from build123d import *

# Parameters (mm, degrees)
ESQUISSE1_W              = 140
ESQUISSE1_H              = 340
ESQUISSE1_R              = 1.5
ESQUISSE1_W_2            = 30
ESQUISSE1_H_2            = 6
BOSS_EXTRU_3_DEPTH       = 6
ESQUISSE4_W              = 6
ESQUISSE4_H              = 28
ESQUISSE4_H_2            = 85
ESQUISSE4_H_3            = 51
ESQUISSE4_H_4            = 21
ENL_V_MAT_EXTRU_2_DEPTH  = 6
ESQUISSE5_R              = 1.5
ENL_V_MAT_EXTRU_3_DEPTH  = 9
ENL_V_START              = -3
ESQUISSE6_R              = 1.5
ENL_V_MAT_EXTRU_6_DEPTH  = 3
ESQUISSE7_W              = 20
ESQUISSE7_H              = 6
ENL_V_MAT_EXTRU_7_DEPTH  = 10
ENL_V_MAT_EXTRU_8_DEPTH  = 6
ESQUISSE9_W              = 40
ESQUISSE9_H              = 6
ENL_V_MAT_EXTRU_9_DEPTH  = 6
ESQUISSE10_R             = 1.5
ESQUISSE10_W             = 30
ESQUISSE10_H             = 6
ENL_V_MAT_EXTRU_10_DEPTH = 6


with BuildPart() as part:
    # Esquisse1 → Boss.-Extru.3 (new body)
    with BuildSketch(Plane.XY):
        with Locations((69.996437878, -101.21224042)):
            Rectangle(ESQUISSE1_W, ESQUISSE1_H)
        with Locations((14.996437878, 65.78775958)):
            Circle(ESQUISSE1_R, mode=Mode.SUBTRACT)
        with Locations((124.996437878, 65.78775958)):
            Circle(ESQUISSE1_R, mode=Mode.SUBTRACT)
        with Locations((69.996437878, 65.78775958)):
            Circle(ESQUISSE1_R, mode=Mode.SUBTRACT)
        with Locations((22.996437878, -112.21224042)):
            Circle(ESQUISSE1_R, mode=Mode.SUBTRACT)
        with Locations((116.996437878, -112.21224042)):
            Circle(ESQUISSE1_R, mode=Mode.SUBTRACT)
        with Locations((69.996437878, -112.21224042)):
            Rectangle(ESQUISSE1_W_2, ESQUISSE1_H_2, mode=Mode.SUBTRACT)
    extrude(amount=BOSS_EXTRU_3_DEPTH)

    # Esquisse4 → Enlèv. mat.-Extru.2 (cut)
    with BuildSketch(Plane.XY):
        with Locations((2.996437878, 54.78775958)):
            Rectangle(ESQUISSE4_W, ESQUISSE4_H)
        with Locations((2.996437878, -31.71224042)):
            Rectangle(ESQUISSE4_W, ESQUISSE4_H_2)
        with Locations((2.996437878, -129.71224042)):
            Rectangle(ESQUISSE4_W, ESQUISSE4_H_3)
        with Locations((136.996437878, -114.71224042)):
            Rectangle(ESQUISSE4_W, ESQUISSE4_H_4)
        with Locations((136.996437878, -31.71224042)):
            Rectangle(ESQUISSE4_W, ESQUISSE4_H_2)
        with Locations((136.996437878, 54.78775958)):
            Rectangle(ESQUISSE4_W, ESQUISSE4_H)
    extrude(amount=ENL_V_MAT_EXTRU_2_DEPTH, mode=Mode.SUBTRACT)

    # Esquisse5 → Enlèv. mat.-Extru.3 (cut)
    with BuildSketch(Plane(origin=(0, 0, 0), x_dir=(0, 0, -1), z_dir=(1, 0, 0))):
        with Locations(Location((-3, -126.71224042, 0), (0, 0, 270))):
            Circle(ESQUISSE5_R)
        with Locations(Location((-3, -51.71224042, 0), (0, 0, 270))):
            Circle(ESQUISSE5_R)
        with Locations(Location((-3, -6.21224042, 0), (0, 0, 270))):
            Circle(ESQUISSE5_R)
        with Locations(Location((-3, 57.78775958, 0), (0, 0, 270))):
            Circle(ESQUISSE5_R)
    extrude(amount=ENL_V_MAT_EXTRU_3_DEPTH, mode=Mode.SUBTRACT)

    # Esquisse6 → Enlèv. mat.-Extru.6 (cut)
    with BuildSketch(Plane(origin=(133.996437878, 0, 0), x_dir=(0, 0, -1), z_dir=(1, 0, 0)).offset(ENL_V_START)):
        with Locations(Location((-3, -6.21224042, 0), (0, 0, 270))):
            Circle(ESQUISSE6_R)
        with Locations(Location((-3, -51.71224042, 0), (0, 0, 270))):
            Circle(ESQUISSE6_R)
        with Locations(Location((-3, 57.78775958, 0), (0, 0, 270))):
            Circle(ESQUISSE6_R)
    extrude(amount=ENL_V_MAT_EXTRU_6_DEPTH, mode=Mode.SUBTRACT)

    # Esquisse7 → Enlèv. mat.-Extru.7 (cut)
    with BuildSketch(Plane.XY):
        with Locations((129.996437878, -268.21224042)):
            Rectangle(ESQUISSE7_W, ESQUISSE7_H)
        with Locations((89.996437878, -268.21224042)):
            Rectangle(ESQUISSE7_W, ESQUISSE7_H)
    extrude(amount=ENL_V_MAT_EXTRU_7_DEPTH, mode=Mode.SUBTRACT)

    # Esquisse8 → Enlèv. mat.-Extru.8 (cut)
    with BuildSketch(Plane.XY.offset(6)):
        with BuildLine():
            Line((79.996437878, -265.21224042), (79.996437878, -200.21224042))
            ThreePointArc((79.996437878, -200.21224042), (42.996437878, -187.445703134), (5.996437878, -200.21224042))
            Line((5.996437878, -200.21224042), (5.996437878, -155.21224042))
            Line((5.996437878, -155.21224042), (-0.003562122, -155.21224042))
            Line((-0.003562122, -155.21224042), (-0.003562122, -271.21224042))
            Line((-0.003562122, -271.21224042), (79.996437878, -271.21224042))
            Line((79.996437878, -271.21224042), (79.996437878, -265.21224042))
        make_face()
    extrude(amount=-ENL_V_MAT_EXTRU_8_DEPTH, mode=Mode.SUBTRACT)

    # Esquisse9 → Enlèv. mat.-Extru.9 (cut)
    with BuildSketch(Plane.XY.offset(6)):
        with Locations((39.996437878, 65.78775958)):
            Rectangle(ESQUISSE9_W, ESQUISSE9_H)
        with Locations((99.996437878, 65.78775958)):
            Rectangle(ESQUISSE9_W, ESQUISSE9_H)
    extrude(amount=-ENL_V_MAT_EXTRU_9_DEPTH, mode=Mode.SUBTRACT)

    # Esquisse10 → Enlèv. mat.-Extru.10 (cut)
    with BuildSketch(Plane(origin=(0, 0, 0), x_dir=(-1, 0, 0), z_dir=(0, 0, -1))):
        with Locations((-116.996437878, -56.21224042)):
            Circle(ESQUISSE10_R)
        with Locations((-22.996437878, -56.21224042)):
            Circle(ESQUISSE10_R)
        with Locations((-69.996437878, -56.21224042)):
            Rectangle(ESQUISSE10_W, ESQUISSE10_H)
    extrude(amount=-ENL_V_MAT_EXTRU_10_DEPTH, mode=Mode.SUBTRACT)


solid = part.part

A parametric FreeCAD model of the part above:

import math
import FreeCAD as App
import Part
import Sketcher


def add_polygon(sketch, points):
    """Adds a closed chain of lines whose ends are joined by coincident constraints."""
    first, n = sketch.GeometryCount, len(points)
    for a, b in zip(points, points[1:] + points[:1]):
        sketch.addGeometry(Part.LineSegment(App.Vector(*a, 0), App.Vector(*b, 0)), False)
    for i in range(n):
        sketch.addConstraint(Sketcher.Constraint("Coincident", first + i, 2, first + (i + 1) % n, 1))

doc = App.newDocument("Part")
body = doc.addObject("PartDesign::Body", "Body")

# Sketch on XY plane
sketch1 = doc.addObject("Sketcher::SketchObject", "Sketch")
body.addObject(sketch1)
sketch1.AttachmentSupport = (doc.XY_Plane, [""])
sketch1.MapMode = "FlatFace"
add_polygon(sketch1, [(0, 68.8), (0, -271.2), (140, -271.2), (140, 68.8)])  # lines 0-3
sketch1.addGeometry(Part.Circle(App.Vector(23, -112.2, 0), App.Vector(0, 0, 1), 1.5), False)  # 4
add_polygon(sketch1, [(85, -115.2), (55, -115.2), (55, -109.2), (85, -109.2)])  # lines 5-8
sketch1.addGeometry(Part.Circle(App.Vector(117, -112.2, 0), App.Vector(0, 0, 1), 1.5), False)  # 9
sketch1.addGeometry(Part.Circle(App.Vector(15, 65.8, 0), App.Vector(0, 0, 1), 1.5), False)  # 10
sketch1.addGeometry(Part.Circle(App.Vector(70, 65.8, 0), App.Vector(0, 0, 1), 1.5), False)  # 11
sketch1.addGeometry(Part.Circle(App.Vector(125, 65.8, 0), App.Vector(0, 0, 1), 1.5), False)  # 12
sketch1.addConstraint(Sketcher.Constraint("Vertical", 0))
sketch1.addConstraint(Sketcher.Constraint("Horizontal", 1))
sketch1.addConstraint(Sketcher.Constraint("Vertical", 2))
sketch1.addConstraint(Sketcher.Constraint("Horizontal", 3))
sketch1.addConstraint(Sketcher.Constraint("Horizontal", 5))
sketch1.addConstraint(Sketcher.Constraint("Vertical", 6))
sketch1.addConstraint(Sketcher.Constraint("Horizontal", 7))
sketch1.addConstraint(Sketcher.Constraint("Vertical", 8))
sketch1.addConstraint(Sketcher.Constraint("Equal", 4, 9))
sketch1.addConstraint(Sketcher.Constraint("Equal", 9, 10))
sketch1.addConstraint(Sketcher.Constraint("Equal", 10, 11))
sketch1.addConstraint(Sketcher.Constraint("Equal", 11, 12))
sketch1.addConstraint(Sketcher.Constraint("Horizontal", 4, 3, 9, 3))
sketch1.addConstraint(Sketcher.Constraint("Horizontal", 10, 3, 11, 3))
sketch1.addConstraint(Sketcher.Constraint("Horizontal", 11, 3, 12, 3))
sketch1.addConstraint(Sketcher.Constraint("Diameter", 4, 3.0))
sketch1.addConstraint(Sketcher.Constraint("DistanceX", 1, 1, 1, 2, 140.0))
sketch1.addConstraint(Sketcher.Constraint("DistanceX", 5, 2, 5, 1, 30.0))
sketch1.addConstraint(Sketcher.Constraint("DistanceY", 0, 2, 0, 1, 340.0))
sketch1.addConstraint(Sketcher.Constraint("DistanceY", 6, 1, 6, 2, 6.0))
sketch1.addConstraint(Sketcher.Constraint("DistanceX", 4, 3, 9, 3, 94.0))
sketch1.addConstraint(Sketcher.Constraint("DistanceX", 10, 3, 4, 3, 8.0))
sketch1.addConstraint(Sketcher.Constraint("DistanceY", 4, 3, 10, 3, 178.0))
sketch1.addConstraint(Sketcher.Constraint("DistanceX", 10, 3, 11, 3, 55.0))
sketch1.addConstraint(Sketcher.Constraint("DistanceX", 11, 3, 12, 3, 55.0))
sketch1.addConstraint(Sketcher.Constraint("DistanceX", 0, 2, 4, 3, 23.0))
sketch1.addConstraint(Sketcher.Constraint("DistanceY", 0, 2, 4, 3, 159.0))
sketch1.addConstraint(Sketcher.Constraint("DistanceX", 4, 3, 5, 2, 32.0))
sketch1.addConstraint(Sketcher.Constraint("DistanceY", 5, 2, 4, 3, 3.0))
sketch1.addConstraint(Sketcher.Constraint("DistanceY", 4, 3, -1, 1, 112.21224))
sketch1.addConstraint(Sketcher.Constraint("DistanceX", -1, 1, 4, 3, 22.996438))
pad1 = doc.addObject("PartDesign::Pad", "Pad")
body.addObject(pad1)
pad1.Profile = sketch1
pad1.Length = 6

# Sketch on XY plane
sketch2 = doc.addObject("Sketcher::SketchObject", "Sketch001")
body.addObject(sketch2)
sketch2.AttachmentSupport = (doc.XY_Plane, [""])
sketch2.MapMode = "FlatFace"
add_polygon(sketch2, [(0, 69), (0, 41), (6, 41), (6, 69)])  # lines 0-3
add_polygon(sketch2, [(0, 11), (0, -74), (6, -74), (6, 11)])  # lines 4-7
add_polygon(sketch2, [(0, -104), (0, -155), (6, -155), (6, -104)])  # lines 8-11
add_polygon(sketch2, [(134, -104), (134, -125), (140, -125), (140, -104)])  # lines 12-15
add_polygon(sketch2, [(134, 11), (134, -74), (140, -74), (140, 11)])  # lines 16-19
add_polygon(sketch2, [(134, 69), (134, 41), (140, 41), (140, 69)])  # lines 20-23
sketch2.addConstraint(Sketcher.Constraint("Vertical", 0))
sketch2.addConstraint(Sketcher.Constraint("Horizontal", 1))
sketch2.addConstraint(Sketcher.Constraint("Vertical", 2))
sketch2.addConstraint(Sketcher.Constraint("Horizontal", 3))
sketch2.addConstraint(Sketcher.Constraint("Vertical", 4))
sketch2.addConstraint(Sketcher.Constraint("Horizontal", 5))
sketch2.addConstraint(Sketcher.Constraint("Vertical", 6))
sketch2.addConstraint(Sketcher.Constraint("Horizontal", 7))
sketch2.addConstraint(Sketcher.Constraint("Vertical", 8))
sketch2.addConstraint(Sketcher.Constraint("Horizontal", 9))
sketch2.addConstraint(Sketcher.Constraint("Vertical", 10))
sketch2.addConstraint(Sketcher.Constraint("Horizontal", 11))
sketch2.addConstraint(Sketcher.Constraint("Vertical", 12))
sketch2.addConstraint(Sketcher.Constraint("Horizontal", 13))
sketch2.addConstraint(Sketcher.Constraint("Vertical", 14))
sketch2.addConstraint(Sketcher.Constraint("Horizontal", 15))
sketch2.addConstraint(Sketcher.Constraint("Vertical", 16))
sketch2.addConstraint(Sketcher.Constraint("Horizontal", 17))
sketch2.addConstraint(Sketcher.Constraint("Vertical", 18))
sketch2.addConstraint(Sketcher.Constraint("Horizontal", 19))
sketch2.addConstraint(Sketcher.Constraint("Vertical", 20))
sketch2.addConstraint(Sketcher.Constraint("Horizontal", 21))
sketch2.addConstraint(Sketcher.Constraint("Vertical", 22))
sketch2.addConstraint(Sketcher.Constraint("Horizontal", 23))
sketch2.addConstraint(Sketcher.Constraint("Horizontal", 11, 2, 14, 2))
sketch2.addConstraint(Sketcher.Constraint("Horizontal", 5, 2, 16, 2))
sketch2.addConstraint(Sketcher.Constraint("Horizontal", 7, 2, 18, 2))
sketch2.addConstraint(Sketcher.Constraint("Horizontal", 1, 2, 20, 2))
sketch2.addConstraint(Sketcher.Constraint("Horizontal", 3, 2, 22, 2))
sketch2.addConstraint(Sketcher.Constraint("Vertical", 3, 2, 4, 2))
sketch2.addConstraint(Sketcher.Constraint("Vertical", 2, 2, 5, 2))
sketch2.addConstraint(Sketcher.Constraint("Vertical", 7, 2, 8, 2))
sketch2.addConstraint(Sketcher.Constraint("Vertical", 6, 2, 9, 2))
sketch2.addConstraint(Sketcher.Constraint("Vertical", 15, 2, 16, 2))
sketch2.addConstraint(Sketcher.Constraint("Vertical", 14, 2, 17, 2))
sketch2.addConstraint(Sketcher.Constraint("Vertical", 19, 2, 20, 2))
sketch2.addConstraint(Sketcher.Constraint("Vertical", 18, 2, 21, 2))
sketch2.addConstraint(Sketcher.Constraint("Equal", 11, 13))
sketch2.addConstraint(Sketcher.Constraint("DistanceX", 1, 1, 1, 2, 6.0))
sketch2.addConstraint(Sketcher.Constraint("DistanceY", 0, 2, 0, 1, 28.0))
sketch2.addConstraint(Sketcher.Constraint("DistanceY", 4, 2, 4, 1, 85.0))
sketch2.addConstraint(Sketcher.Constraint("DistanceY", 8, 2, 8, 1, 51.0))
sketch2.addConstraint(Sketcher.Constraint("DistanceY", 12, 2, 12, 1, 21.0))
sketch2.addConstraint(Sketcher.Constraint("DistanceY", 4, 2, 0, 2, 115.0))
sketch2.addConstraint(Sketcher.Constraint("DistanceY", 8, 2, 4, 2, 81.0))
sketch2.addConstraint(Sketcher.Constraint("DistanceX", 10, 2, 12, 2, 128.0))
sketch2.addConstraint(Sketcher.Constraint("DistanceY", -1, 1, 0, 2, 40.78776))
sketch2.addConstraint(Sketcher.Constraint("DistanceX", 0, 2, -1, 1, 0.003562))
pocket1 = doc.addObject("PartDesign::Pocket", "Pocket")
body.addObject(pocket1)
pocket1.Profile = sketch2
pocket1.Length = 6
pocket1.Reversed = True

# Sketch on YZ plane
sketch3 = doc.addObject("Sketcher::SketchObject", "Sketch002")
body.addObject(sketch3)
sketch3.AttachmentSupport = (doc.YZ_Plane, [""])
sketch3.MapMode = "FlatFace"
sketch3.addGeometry(Part.Circle(App.Vector(-126.7, 3, 0), App.Vector(0, 0, 1), 1.5), False)
sketch3.addGeometry(Part.Circle(App.Vector(-51.7, 3, 0), App.Vector(0, 0, 1), 1.5), False)
sketch3.addGeometry(Part.Circle(App.Vector(-6.2, 3, 0), App.Vector(0, 0, 1), 1.5), False)
sketch3.addGeometry(Part.Circle(App.Vector(57.8, 3, 0), App.Vector(0, 0, 1), 1.5), False)
sketch3.addConstraint(Sketcher.Constraint("Equal", 0, 1))
sketch3.addConstraint(Sketcher.Constraint("Equal", 1, 2))
sketch3.addConstraint(Sketcher.Constraint("Equal", 2, 3))
sketch3.addConstraint(Sketcher.Constraint("Horizontal", 0, 3, 1, 3))
sketch3.addConstraint(Sketcher.Constraint("Horizontal", 1, 3, 2, 3))
sketch3.addConstraint(Sketcher.Constraint("Horizontal", 2, 3, 3, 3))
sketch3.addConstraint(Sketcher.Constraint("Diameter", 0, 3.0))
sketch3.addConstraint(Sketcher.Constraint("DistanceY", -1, 1, 0, 3, 3.0))
sketch3.addConstraint(Sketcher.Constraint("DistanceX", 0, 3, 1, 3, 75.0))
sketch3.addConstraint(Sketcher.Constraint("DistanceX", 2, 3, 3, 3, 64.0))
sketch3.addConstraint(Sketcher.Constraint("DistanceX", 1, 3, 2, 3, 45.5))
sketch3.addConstraint(Sketcher.Constraint("DistanceX", 0, 3, -1, 1, 126.71224))
pocket2 = doc.addObject("PartDesign::Pocket", "Pocket001")
body.addObject(pocket2)
pocket2.Profile = sketch3
pocket2.Length = 9
pocket2.Reversed = True

# Sketch on YZ plane
sketch4 = doc.addObject("Sketcher::SketchObject", "Sketch003")
body.addObject(sketch4)
sketch4.AttachmentSupport = (doc.YZ_Plane, [""])
sketch4.MapMode = "FlatFace"
sketch4.AttachmentOffset = App.Placement(App.Vector(0, 0, 130.996438), App.Rotation())
sketch4.addGeometry(Part.Circle(App.Vector(-6.2, 3, 0), App.Vector(0, 0, 1), 1.5), False)
sketch4.addGeometry(Part.Circle(App.Vector(-51.7, 3, 0), App.Vector(0, 0, 1), 1.5), False)
sketch4.addGeometry(Part.Circle(App.Vector(57.8, 3, 0), App.Vector(0, 0, 1), 1.5), False)
sketch4.addConstraint(Sketcher.Constraint("Equal", 0, 1))
sketch4.addConstraint(Sketcher.Constraint("Equal", 1, 2))
sketch4.addConstraint(Sketcher.Constraint("Horizontal", 0, 3, 1, 3))
sketch4.addConstraint(Sketcher.Constraint("Horizontal", 1, 3, 2, 3))
sketch4.addConstraint(Sketcher.Constraint("Diameter", 0, 3.0))
sketch4.addConstraint(Sketcher.Constraint("DistanceY", -1, 1, 0, 3, 3.0))
sketch4.addConstraint(Sketcher.Constraint("DistanceX", 0, 3, 2, 3, 64.0))
sketch4.addConstraint(Sketcher.Constraint("DistanceX", 1, 3, 0, 3, 45.5))
sketch4.addConstraint(Sketcher.Constraint("DistanceX", 0, 3, -1, 1, 6.21224))
pocket3 = doc.addObject("PartDesign::Pocket", "Pocket002")
body.addObject(pocket3)
pocket3.Profile = sketch4
pocket3.Length = 3
pocket3.Reversed = True

# Sketch on XY plane
sketch5 = doc.addObject("Sketcher::SketchObject", "Sketch004")
body.addObject(sketch5)
sketch5.AttachmentSupport = (doc.XY_Plane, [""])
sketch5.MapMode = "FlatFace"
add_polygon(sketch5, [(120, -265), (120, -271), (140, -271), (140, -265)])  # lines 0-3
add_polygon(sketch5, [(80, -265), (80, -271), (100, -271), (100, -265)])  # lines 4-7
sketch5.addConstraint(Sketcher.Constraint("Vertical", 0))
sketch5.addConstraint(Sketcher.Constraint("Horizontal", 1))
sketch5.addConstraint(Sketcher.Constraint("Vertical", 2))
sketch5.addConstraint(Sketcher.Constraint("Horizontal", 3))
sketch5.addConstraint(Sketcher.Constraint("Vertical", 4))
sketch5.addConstraint(Sketcher.Constraint("Horizontal", 5))
sketch5.addConstraint(Sketcher.Constraint("Vertical", 6))
sketch5.addConstraint(Sketcher.Constraint("Horizontal", 7))
sketch5.addConstraint(Sketcher.Constraint("Horizontal", 1, 2, 4, 2))
sketch5.addConstraint(Sketcher.Constraint("Horizontal", 3, 2, 6, 2))
sketch5.addConstraint(Sketcher.Constraint("Equal", 3, 5))
sketch5.addConstraint(Sketcher.Constraint("DistanceX", 1, 1, 1, 2, 20.0))
sketch5.addConstraint(Sketcher.Constraint("DistanceY", 0, 2, 0, 1, 6.0))
sketch5.addConstraint(Sketcher.Constraint("DistanceX", 4, 2, 0, 2, 40.0))
sketch5.addConstraint(Sketcher.Constraint("DistanceY", 0, 2, -1, 1, 271.21224))
sketch5.addConstraint(Sketcher.Constraint("DistanceX", -1, 1, 0, 2, 119.996438))
pocket4 = doc.addObject("PartDesign::Pocket", "Pocket003")
body.addObject(pocket4)
pocket4.Profile = sketch5
pocket4.Length = 10
pocket4.Reversed = True

# Sketch on XY plane
sketch6 = doc.addObject("Sketcher::SketchObject", "Sketch005")
body.addObject(sketch6)
sketch6.AttachmentSupport = (doc.XY_Plane, [""])
sketch6.MapMode = "FlatFace"
sketch6.AttachmentOffset = App.Placement(App.Vector(0, 0, 6), App.Rotation())
sketch6.addGeometry(Part.ArcOfCircle(Part.Circle(App.Vector(43, -247, 0), App.Vector(0, 0, 1), 60), math.radians(52), math.radians(128)), False)
sketch6.addGeometry(Part.LineSegment(App.Vector(6, -200, 0), App.Vector(6, -155, 0)), False)
sketch6.addGeometry(Part.LineSegment(App.Vector(6, -155, 0), App.Vector(0, -155, 0)), False)
sketch6.addGeometry(Part.LineSegment(App.Vector(0, -155, 0), App.Vector(0, -271, 0)), False)
sketch6.addGeometry(Part.LineSegment(App.Vector(0, -271, 0), App.Vector(80, -271, 0)), False)
sketch6.addGeometry(Part.LineSegment(App.Vector(80, -271, 0), App.Vector(80, -200, 0)), False)
sketch6.addConstraint(Sketcher.Constraint("Coincident", 0, 2, 1, 1))
sketch6.addConstraint(Sketcher.Constraint("Coincident", 1, 2, 2, 1))
sketch6.addConstraint(Sketcher.Constraint("Coincident", 2, 2, 3, 1))
sketch6.addConstraint(Sketcher.Constraint("Coincident", 3, 2, 4, 1))
sketch6.addConstraint(Sketcher.Constraint("Coincident", 4, 2, 5, 1))
sketch6.addConstraint(Sketcher.Constraint("Coincident", 5, 2, 0, 1))
sketch6.addConstraint(Sketcher.Constraint("Vertical", 1))
sketch6.addConstraint(Sketcher.Constraint("Horizontal", 2))
sketch6.addConstraint(Sketcher.Constraint("Vertical", 3))
sketch6.addConstraint(Sketcher.Constraint("Horizontal", 4))
sketch6.addConstraint(Sketcher.Constraint("Vertical", 5))
sketch6.addConstraint(Sketcher.Constraint("Horizontal", 0, 2, 5, 2))
sketch6.addConstraint(Sketcher.Constraint("Radius", 0, 60.0))
sketch6.addConstraint(Sketcher.Constraint("DistanceX", 2, 2, 2, 1, 6.0))
sketch6.addConstraint(Sketcher.Constraint("DistanceX", 4, 1, 4, 2, 80.0))
sketch6.addConstraint(Sketcher.Constraint("DistanceY", 1, 1, 1, 2, 45.0))
sketch6.addConstraint(Sketcher.Constraint("DistanceY", 3, 2, 3, 1, 116.0))
sketch6.addConstraint(Sketcher.Constraint("DistanceY", 0, 2, -1, 1, 200.21224))
sketch6.addConstraint(Sketcher.Constraint("DistanceX", -1, 1, 0, 3, 42.996438))
pocket5 = doc.addObject("PartDesign::Pocket", "Pocket004")
body.addObject(pocket5)
pocket5.Profile = sketch6
pocket5.Length = 6

# Sketch on XY plane
sketch7 = doc.addObject("Sketcher::SketchObject", "Sketch006")
body.addObject(sketch7)
sketch7.AttachmentSupport = (doc.XY_Plane, [""])
sketch7.MapMode = "FlatFace"
sketch7.AttachmentOffset = App.Placement(App.Vector(0, 0, 6), App.Rotation())
add_polygon(sketch7, [(20, 69), (20, 63), (60, 63), (60, 69)])  # lines 0-3
add_polygon(sketch7, [(80, 69), (80, 63), (120, 63), (120, 69)])  # lines 4-7
sketch7.addConstraint(Sketcher.Constraint("Vertical", 0))
sketch7.addConstraint(Sketcher.Constraint("Horizontal", 1))
sketch7.addConstraint(Sketcher.Constraint("Vertical", 2))
sketch7.addConstraint(Sketcher.Constraint("Horizontal", 3))
sketch7.addConstraint(Sketcher.Constraint("Vertical", 4))
sketch7.addConstraint(Sketcher.Constraint("Horizontal", 5))
sketch7.addConstraint(Sketcher.Constraint("Vertical", 6))
sketch7.addConstraint(Sketcher.Constraint("Horizontal", 7))
sketch7.addConstraint(Sketcher.Constraint("Horizontal", 1, 2, 4, 2))
sketch7.addConstraint(Sketcher.Constraint("Horizontal", 3, 2, 6, 2))
sketch7.addConstraint(Sketcher.Constraint("Equal", 3, 5))
sketch7.addConstraint(Sketcher.Constraint("DistanceX", 1, 1, 1, 2, 40.0))
sketch7.addConstraint(Sketcher.Constraint("DistanceY", 0, 2, 0, 1, 6.0))
sketch7.addConstraint(Sketcher.Constraint("DistanceX", 1, 2, 4, 2, 20.0))
sketch7.addConstraint(Sketcher.Constraint("DistanceY", -1, 1, 0, 2, 62.78776))
sketch7.addConstraint(Sketcher.Constraint("DistanceX", -1, 1, 0, 2, 19.996438))
pocket6 = doc.addObject("PartDesign::Pocket", "Pocket005")
body.addObject(pocket6)
pocket6.Profile = sketch7
pocket6.Length = 6

# Sketch on XY plane
sketch8 = doc.addObject("Sketcher::SketchObject", "Sketch007")
body.addObject(sketch8)
sketch8.AttachmentSupport = (doc.XY_Plane, [""])
sketch8.MapMode = "FlatFace"
sketch8.addGeometry(Part.Circle(App.Vector(117, -56.2, 0), App.Vector(0, 0, 1), 1.5), False)  # 0
sketch8.addGeometry(Part.Circle(App.Vector(23, -56.2, 0), App.Vector(0, 0, 1), 1.5), False)  # 1
add_polygon(sketch8, [(85, -53.2), (85, -59.2), (55, -59.2), (55, -53.2)])  # lines 2-5
sketch8.addConstraint(Sketcher.Constraint("Vertical", 2))
sketch8.addConstraint(Sketcher.Constraint("Horizontal", 3))
sketch8.addConstraint(Sketcher.Constraint("Vertical", 4))
sketch8.addConstraint(Sketcher.Constraint("Horizontal", 5))
sketch8.addConstraint(Sketcher.Constraint("Equal", 0, 1))
sketch8.addConstraint(Sketcher.Constraint("Horizontal", 0, 3, 1, 3))
sketch8.addConstraint(Sketcher.Constraint("Diameter", 0, 3.0))
sketch8.addConstraint(Sketcher.Constraint("DistanceX", 3, 2, 3, 1, 30.0))
sketch8.addConstraint(Sketcher.Constraint("DistanceY", 2, 2, 2, 1, 6.0))
sketch8.addConstraint(Sketcher.Constraint("DistanceX", 1, 3, 0, 3, 94.0))
sketch8.addConstraint(Sketcher.Constraint("DistanceX", 2, 2, 0, 3, 32.0))
sketch8.addConstraint(Sketcher.Constraint("DistanceY", 2, 2, 0, 3, 3.0))
sketch8.addConstraint(Sketcher.Constraint("DistanceY", 0, 3, -1, 1, 56.21224))
sketch8.addConstraint(Sketcher.Constraint("DistanceX", -1, 1, 0, 3, 116.996438))
pocket7 = doc.addObject("PartDesign::Pocket", "Pocket006")
body.addObject(pocket7)
pocket7.Profile = sketch8
pocket7.Length = 6
pocket7.Reversed = True

doc.recompute()
